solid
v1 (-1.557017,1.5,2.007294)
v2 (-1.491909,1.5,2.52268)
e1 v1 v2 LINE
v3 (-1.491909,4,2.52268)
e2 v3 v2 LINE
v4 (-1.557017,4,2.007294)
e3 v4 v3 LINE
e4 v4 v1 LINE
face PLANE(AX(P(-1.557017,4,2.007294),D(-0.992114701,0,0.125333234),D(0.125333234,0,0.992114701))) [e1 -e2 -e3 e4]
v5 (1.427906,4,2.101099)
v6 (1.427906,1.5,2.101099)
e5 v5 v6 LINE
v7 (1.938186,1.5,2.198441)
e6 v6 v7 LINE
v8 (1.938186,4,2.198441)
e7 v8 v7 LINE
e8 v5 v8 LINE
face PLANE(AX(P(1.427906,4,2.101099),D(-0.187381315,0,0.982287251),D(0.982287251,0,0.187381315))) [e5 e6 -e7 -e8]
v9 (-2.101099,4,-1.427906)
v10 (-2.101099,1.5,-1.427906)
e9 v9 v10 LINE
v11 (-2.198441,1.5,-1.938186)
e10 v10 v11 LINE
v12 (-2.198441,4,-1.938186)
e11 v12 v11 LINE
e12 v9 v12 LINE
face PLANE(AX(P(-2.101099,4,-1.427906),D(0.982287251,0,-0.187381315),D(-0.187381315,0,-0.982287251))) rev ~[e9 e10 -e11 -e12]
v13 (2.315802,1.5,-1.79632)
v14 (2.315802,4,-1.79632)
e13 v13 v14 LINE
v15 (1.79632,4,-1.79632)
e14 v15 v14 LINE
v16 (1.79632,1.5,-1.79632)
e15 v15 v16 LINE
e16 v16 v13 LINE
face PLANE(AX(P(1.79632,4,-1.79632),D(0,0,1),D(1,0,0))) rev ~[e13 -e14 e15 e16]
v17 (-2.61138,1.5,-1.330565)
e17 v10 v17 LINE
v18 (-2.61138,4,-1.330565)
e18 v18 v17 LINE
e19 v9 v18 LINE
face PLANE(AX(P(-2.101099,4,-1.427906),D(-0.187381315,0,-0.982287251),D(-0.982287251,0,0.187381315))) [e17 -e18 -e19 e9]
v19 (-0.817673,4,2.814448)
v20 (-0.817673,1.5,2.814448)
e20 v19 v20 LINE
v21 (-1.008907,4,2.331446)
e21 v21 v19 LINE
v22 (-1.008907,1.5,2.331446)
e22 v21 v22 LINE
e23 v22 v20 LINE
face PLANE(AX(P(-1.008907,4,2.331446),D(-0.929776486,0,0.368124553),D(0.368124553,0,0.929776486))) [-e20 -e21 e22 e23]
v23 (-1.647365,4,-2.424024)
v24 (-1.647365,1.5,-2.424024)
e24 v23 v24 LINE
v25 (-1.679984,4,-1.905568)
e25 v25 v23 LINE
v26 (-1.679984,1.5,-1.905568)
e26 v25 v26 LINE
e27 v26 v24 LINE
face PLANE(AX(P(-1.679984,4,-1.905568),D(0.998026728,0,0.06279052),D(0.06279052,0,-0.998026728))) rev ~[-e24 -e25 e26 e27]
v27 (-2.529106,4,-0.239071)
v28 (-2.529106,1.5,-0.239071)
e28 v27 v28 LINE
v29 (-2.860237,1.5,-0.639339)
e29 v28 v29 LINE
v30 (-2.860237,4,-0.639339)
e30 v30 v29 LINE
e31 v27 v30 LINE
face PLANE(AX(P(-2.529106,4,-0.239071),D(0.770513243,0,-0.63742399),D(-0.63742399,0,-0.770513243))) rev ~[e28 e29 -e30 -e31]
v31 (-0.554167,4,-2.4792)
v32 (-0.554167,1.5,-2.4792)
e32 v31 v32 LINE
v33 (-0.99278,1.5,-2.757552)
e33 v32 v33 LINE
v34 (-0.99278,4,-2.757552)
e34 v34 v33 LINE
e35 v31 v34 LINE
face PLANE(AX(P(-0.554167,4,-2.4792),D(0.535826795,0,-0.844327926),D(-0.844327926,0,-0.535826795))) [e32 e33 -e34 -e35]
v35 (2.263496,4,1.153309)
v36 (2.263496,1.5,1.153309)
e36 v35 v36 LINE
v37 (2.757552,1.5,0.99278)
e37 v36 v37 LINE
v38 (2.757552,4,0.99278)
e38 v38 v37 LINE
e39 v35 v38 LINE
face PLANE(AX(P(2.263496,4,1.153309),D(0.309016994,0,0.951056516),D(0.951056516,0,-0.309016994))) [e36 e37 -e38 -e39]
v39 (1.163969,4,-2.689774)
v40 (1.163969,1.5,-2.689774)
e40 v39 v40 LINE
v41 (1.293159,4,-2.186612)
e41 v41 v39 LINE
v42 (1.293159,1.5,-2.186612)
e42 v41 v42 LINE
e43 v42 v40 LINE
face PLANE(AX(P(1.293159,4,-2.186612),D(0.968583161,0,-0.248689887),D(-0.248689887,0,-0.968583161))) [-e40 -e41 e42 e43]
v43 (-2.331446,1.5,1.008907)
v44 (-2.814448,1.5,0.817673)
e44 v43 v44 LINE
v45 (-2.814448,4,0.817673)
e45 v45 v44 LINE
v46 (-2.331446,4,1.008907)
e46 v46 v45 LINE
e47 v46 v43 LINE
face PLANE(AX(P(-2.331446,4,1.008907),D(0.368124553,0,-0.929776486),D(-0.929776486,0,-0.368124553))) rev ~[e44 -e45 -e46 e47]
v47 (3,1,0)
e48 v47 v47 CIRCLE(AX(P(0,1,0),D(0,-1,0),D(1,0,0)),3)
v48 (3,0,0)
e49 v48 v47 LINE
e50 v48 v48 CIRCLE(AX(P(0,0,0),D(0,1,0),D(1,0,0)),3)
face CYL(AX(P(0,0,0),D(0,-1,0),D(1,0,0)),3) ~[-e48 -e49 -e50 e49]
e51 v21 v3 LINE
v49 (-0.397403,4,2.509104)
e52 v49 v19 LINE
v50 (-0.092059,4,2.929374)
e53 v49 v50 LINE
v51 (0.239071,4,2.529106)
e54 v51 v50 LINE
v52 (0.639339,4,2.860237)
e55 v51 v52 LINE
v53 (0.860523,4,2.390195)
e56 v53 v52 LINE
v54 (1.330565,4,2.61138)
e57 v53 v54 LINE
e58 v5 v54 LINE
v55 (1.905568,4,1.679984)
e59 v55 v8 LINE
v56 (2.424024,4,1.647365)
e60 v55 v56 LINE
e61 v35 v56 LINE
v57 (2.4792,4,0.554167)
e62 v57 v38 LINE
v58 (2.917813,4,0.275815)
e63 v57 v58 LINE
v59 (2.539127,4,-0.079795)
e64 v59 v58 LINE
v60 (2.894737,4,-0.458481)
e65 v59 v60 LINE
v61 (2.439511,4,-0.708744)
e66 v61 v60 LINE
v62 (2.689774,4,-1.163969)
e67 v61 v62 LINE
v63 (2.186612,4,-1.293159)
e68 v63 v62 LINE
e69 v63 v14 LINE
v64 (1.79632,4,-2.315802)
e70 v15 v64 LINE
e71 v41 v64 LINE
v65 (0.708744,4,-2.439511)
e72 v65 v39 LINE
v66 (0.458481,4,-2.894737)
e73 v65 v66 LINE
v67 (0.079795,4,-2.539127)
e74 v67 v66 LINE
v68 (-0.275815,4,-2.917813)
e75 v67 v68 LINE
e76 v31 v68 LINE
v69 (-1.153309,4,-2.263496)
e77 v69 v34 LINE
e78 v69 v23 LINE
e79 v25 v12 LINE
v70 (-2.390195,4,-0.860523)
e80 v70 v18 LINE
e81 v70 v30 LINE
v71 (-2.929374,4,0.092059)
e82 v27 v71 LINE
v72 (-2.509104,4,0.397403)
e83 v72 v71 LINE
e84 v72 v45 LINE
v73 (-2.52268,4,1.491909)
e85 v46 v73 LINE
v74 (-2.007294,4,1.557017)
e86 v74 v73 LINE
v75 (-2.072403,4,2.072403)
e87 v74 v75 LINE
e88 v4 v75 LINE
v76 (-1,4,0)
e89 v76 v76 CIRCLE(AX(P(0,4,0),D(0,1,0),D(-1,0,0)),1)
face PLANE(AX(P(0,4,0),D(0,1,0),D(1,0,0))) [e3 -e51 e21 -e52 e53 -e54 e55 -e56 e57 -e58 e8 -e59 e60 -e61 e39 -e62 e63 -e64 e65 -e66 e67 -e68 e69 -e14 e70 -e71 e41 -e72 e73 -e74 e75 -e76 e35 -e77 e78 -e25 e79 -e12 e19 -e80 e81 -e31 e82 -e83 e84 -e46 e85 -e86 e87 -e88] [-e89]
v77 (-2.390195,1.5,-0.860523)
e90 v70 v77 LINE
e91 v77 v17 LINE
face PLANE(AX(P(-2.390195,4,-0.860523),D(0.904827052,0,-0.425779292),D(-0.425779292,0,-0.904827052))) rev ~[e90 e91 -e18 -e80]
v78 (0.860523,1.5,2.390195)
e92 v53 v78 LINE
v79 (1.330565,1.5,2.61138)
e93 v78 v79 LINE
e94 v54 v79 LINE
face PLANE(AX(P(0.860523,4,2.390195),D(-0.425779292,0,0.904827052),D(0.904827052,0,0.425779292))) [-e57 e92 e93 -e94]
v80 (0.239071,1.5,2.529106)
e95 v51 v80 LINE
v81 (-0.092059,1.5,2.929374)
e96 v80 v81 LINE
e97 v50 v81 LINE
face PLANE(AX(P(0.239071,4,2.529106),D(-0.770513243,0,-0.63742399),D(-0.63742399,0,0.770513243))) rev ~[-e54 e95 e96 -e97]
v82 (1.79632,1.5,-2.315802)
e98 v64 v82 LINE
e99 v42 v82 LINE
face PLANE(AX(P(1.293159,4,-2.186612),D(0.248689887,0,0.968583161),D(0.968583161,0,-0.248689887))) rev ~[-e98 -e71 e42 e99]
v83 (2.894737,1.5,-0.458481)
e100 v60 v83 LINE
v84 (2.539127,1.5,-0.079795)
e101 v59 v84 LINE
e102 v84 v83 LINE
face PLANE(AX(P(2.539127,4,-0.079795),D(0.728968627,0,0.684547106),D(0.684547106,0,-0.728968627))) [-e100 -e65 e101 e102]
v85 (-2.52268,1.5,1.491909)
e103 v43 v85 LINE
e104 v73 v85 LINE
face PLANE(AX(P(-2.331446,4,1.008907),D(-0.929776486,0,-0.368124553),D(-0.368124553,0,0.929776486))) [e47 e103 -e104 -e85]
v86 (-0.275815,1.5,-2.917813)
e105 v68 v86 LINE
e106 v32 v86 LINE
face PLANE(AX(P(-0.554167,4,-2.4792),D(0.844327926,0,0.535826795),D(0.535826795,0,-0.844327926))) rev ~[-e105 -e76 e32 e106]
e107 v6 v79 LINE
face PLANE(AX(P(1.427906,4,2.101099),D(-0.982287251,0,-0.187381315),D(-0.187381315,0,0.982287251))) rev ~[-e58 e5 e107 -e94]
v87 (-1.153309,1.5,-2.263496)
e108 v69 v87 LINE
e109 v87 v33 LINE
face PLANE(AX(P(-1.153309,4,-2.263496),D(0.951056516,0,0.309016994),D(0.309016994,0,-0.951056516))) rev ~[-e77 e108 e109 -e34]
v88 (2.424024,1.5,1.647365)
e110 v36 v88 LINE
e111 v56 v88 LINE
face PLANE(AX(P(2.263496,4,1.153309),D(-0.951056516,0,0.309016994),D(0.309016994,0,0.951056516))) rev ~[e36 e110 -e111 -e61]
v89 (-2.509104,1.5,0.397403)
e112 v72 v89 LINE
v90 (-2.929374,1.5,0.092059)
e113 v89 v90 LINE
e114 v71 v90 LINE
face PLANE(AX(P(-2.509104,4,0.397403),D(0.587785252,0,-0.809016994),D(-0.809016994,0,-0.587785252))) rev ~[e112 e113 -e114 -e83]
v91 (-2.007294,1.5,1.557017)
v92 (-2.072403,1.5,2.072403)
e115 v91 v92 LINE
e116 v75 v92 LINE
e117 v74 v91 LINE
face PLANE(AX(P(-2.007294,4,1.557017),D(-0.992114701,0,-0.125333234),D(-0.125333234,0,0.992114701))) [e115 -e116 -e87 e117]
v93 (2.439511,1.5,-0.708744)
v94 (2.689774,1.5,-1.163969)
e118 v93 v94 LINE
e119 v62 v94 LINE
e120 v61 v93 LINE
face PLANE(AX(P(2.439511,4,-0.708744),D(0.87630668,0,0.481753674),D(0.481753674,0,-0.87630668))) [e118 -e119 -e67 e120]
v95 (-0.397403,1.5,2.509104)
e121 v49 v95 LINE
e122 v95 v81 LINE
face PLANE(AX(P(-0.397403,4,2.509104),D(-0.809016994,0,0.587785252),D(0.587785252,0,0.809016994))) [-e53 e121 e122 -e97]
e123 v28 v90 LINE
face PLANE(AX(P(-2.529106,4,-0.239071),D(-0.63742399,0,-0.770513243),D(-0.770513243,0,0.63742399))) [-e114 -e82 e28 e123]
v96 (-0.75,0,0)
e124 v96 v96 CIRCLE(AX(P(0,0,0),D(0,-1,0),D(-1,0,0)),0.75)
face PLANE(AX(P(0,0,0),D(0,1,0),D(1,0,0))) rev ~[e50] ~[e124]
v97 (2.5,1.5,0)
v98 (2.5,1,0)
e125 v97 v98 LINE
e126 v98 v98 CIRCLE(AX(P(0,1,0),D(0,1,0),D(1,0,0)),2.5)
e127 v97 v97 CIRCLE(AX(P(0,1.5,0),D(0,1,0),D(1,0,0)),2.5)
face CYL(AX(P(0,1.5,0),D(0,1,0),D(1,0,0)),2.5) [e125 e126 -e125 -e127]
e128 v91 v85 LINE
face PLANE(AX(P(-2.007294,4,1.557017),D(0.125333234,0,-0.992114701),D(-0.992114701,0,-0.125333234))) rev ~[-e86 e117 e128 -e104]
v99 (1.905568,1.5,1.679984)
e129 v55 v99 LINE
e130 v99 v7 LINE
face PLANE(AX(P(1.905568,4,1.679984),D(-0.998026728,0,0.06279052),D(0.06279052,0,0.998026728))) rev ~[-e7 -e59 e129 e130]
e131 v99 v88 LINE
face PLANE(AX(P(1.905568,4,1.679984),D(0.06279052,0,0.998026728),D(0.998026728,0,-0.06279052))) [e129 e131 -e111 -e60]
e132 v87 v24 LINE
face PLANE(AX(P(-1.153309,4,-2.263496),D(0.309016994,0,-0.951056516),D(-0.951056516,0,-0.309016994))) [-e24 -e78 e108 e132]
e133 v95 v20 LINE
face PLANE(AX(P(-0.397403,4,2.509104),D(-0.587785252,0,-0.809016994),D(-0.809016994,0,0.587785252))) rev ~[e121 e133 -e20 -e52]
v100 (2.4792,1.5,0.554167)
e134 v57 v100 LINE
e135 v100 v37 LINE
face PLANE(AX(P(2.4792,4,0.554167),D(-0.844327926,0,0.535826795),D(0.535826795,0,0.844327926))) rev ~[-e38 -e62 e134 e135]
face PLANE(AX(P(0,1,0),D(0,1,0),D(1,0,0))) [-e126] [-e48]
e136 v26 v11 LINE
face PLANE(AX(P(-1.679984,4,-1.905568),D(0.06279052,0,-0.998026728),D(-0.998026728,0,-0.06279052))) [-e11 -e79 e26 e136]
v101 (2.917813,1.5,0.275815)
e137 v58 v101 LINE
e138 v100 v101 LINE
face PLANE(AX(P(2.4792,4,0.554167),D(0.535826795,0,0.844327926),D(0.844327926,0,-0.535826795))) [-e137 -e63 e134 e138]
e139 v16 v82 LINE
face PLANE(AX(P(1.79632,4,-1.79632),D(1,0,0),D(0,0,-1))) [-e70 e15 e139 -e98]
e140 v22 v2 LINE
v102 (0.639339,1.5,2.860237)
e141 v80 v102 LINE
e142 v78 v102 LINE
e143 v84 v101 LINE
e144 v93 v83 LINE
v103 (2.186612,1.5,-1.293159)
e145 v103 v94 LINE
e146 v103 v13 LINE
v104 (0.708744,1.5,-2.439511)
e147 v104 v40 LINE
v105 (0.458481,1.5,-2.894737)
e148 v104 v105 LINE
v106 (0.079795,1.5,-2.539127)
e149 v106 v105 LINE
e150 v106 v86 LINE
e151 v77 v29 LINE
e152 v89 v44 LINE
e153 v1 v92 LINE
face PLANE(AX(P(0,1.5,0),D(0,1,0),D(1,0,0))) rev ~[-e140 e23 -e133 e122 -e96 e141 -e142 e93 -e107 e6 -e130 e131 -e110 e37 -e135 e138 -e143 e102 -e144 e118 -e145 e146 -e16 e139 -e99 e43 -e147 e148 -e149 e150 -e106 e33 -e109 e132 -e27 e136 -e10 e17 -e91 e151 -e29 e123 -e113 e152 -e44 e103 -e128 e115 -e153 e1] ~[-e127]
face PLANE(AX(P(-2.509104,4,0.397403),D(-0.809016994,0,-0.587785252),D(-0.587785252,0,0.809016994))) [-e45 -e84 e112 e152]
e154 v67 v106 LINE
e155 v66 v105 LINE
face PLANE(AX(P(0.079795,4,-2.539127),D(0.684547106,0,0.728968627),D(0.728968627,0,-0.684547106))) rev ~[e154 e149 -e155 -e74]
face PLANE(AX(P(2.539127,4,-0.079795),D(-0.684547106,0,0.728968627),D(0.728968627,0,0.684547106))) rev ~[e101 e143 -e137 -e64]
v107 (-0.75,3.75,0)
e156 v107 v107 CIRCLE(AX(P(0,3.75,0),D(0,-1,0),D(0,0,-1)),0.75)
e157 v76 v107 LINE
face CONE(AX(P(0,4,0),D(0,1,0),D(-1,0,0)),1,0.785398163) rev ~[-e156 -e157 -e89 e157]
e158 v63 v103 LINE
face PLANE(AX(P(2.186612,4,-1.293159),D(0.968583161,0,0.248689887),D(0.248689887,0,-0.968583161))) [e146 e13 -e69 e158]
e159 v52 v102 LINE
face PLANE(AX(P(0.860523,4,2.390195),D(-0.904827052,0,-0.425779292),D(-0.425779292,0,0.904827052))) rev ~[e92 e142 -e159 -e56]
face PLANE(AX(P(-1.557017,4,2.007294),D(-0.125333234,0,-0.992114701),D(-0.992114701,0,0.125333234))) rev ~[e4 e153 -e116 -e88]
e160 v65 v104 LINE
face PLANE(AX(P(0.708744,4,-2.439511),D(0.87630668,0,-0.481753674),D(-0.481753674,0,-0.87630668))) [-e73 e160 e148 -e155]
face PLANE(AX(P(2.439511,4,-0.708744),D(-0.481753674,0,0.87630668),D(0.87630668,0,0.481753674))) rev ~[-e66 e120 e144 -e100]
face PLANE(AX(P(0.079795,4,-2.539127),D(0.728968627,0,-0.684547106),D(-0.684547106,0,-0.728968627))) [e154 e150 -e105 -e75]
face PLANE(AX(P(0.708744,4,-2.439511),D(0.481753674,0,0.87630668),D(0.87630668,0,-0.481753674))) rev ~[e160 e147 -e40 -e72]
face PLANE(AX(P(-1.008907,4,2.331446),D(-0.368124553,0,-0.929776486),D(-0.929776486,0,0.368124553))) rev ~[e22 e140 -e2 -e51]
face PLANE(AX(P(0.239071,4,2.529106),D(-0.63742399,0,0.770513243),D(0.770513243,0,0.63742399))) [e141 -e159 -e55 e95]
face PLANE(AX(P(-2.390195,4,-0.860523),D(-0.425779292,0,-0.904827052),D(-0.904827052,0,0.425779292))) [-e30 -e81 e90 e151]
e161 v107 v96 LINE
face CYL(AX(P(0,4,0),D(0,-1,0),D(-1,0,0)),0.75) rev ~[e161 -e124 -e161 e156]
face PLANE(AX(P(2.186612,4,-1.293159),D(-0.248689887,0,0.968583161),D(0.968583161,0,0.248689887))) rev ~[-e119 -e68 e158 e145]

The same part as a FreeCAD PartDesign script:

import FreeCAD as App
import Part
import Sketcher

V = App.Vector
Q = App.Units.Quantity

doc = App.newDocument("Part")
body = doc.addObject("PartDesign::Body", "Body")

# Sketch on XZ plane
sketch1 = body.newObject("Sketcher::SketchObject", "Sketch")
sketch1.AttachmentSupport = (doc.getObject("XZ_Plane"), [""])
sketch1.MapMode = "FlatFace"
sketch1.addGeometry(Part.Circle(V(0, 0, 0), V(0, 0, 1), 3), False)
sketch1.addConstraint([
    Sketcher.Constraint("Coincident", 0, 3, -1, 1),
    Sketcher.Constraint("Diameter", 0, Q("6 mm")),
])
pad1 = body.newObject("PartDesign::Pad", "Pad")
pad1.Profile = sketch1
pad1.Length = 4
pad1.Reversed = True

# Sketch on XZ plane
sketch2 = body.newObject("Sketcher::SketchObject", "Sketch001")
sketch2.AttachmentSupport = (doc.getObject("XZ_Plane"), [""])
sketch2.MapMode = "FlatFace"
sketch2.AttachmentOffset = App.Placement(V(0, 0, -4), App.Rotation())
sketch2.addGeometry([
    Part.LineSegment(V(1.8, -2.4, 0), V(1.8, -1.8, 0)),
    Part.LineSegment(V(1.8, -1.8, 0), V(2.4, -1.8, 0)),
    Part.LineSegment(V(2.4, -1.8, 0), V(2.4, -2.4, 0)),
    Part.LineSegment(V(2.4, -2.4, 0), V(1.8, -2.4, 0)),
], False)
sketch2.addConstraint([
    Sketcher.Constraint("Coincident", 0, 2, 1, 1),
    Sketcher.Constraint("Coincident", 1, 2, 2, 1),
    Sketcher.Constraint("Coincident", 2, 2, 3, 1),
    Sketcher.Constraint("Coincident", 3, 2, 0, 1),
    Sketcher.Constraint("Vertical", 0),
    Sketcher.Constraint("Horizontal", 1),
    Sketcher.Constraint("Vertical", 2),
    Sketcher.Constraint("Horizontal", 3),
    Sketcher.Constraint("Equal", 3, 0),
    Sketcher.Constraint("DistanceX", 1, 1, 1, 2, Q("0.65 mm")),
    Sketcher.Constraint("DistanceX", -1, 1, 0, 2, Q("1.79632 mm")),
    Sketcher.Constraint("DistanceY", 0, 2, -1, 1, Q("1.79632 mm")),
])
pocket1 = body.newObject("PartDesign::Pocket", "Pocket")
pocket1.Profile = sketch2
pocket1.Length = 2.5
pocket1.Reversed = True
doc.recompute()

polarpattern = body.newObject("PartDesign::PolarPattern", "PolarPattern")
polarpattern.Originals = [pocket1]
polarpattern.Axis = (doc.getObject("Y_Axis"), [""])
polarpattern.Angle = 360
polarpattern.Occurrences = 25
body.Tip = polarpattern

# Sketch on XZ plane
sketch3 = body.newObject("Sketcher::SketchObject", "Sketch002")
sketch3.AttachmentSupport = (doc.getObject("XZ_Plane"), [""])
sketch3.MapMode = "FlatFace"
sketch3.AttachmentOffset = App.Placement(V(0, 0, -1.5), App.Rotation())
sketch3.addGeometry([
    Part.LineSegment(V(-4.9, -4.9, 0), V(-4.9, 4.9, 0)),  # 0
    Part.LineSegment(V(-4.9, 4.9, 0), V(4.9, 4.9, 0)),  # 1
    Part.LineSegment(V(4.9, 4.9, 0), V(4.9, -4.9, 0)),  # 2
    Part.LineSegment(V(4.9, -4.9, 0), V(-4.9, -4.9, 0)),  # 3
    Part.Circle(V(0, 0, 0), V(0, 0, 1), 2.5),  # 4
], False)
sketch3.addConstraint([
    Sketcher.Constraint("Coincident", 0, 2, 1, 1),
    Sketcher.Constraint("Coincident", 1, 2, 2, 1),
    Sketcher.Constraint("Coincident", 2, 2, 3, 1),
    Sketcher.Constraint("Coincident", 3, 2, 0, 1),
    Sketcher.Constraint("Vertical", 0),
    Sketcher.Constraint("Horizontal", 1),
    Sketcher.Constraint("Vertical", 2),
    Sketcher.Constraint("Horizontal", 3),
    Sketcher.Constraint("Coincident", 4, 3, -1, 1),
    Sketcher.Constraint("Symmetric", 0, 2, 2, 2, -1, 1),
    Sketcher.Constraint("Equal", 3, 0),
    Sketcher.Constraint("Diameter", 4, Q("5 mm")),
    Sketcher.Constraint("DistanceX", 1, 1, 1, 2, Q("9.876 mm")),
])
pocket2 = body.newObject("PartDesign::Pocket", "Pocket001")
pocket2.Profile = sketch3
pocket2.Length = 0.5
pocket2.Reversed = True

# Sketch on XZ plane
sketch4 = body.newObject("Sketcher::SketchObject", "Sketch003")
sketch4.AttachmentSupport = (doc.getObject("XZ_Plane"), [""])
sketch4.MapMode = "FlatFace"
sketch4.AttachmentOffset = App.Placement(V(0, 0, -4), App.Rotation())
sketch4.addGeometry(Part.Circle(V(0, 0, 0), V(0, 0, 1), 0.8), False)
sketch4.addConstraint([
    Sketcher.Constraint("Coincident", 0, 3, -1, 1),
    Sketcher.Constraint("Diameter", 0, Q("1.5 mm")),
])
doc.recompute()
hole = body.newObject("PartDesign::Hole", "Hole")
hole.Profile = sketch4
hole.ThreadType = "None"
hole.Diameter = 1.5
hole.DepthType = "ThroughAll"
hole.HoleCutType = "Countersink"
hole.HoleCutDiameter = 2
hole.HoleCutCountersinkAngle = 90
hole.Reversed = True

doc.recompute()
